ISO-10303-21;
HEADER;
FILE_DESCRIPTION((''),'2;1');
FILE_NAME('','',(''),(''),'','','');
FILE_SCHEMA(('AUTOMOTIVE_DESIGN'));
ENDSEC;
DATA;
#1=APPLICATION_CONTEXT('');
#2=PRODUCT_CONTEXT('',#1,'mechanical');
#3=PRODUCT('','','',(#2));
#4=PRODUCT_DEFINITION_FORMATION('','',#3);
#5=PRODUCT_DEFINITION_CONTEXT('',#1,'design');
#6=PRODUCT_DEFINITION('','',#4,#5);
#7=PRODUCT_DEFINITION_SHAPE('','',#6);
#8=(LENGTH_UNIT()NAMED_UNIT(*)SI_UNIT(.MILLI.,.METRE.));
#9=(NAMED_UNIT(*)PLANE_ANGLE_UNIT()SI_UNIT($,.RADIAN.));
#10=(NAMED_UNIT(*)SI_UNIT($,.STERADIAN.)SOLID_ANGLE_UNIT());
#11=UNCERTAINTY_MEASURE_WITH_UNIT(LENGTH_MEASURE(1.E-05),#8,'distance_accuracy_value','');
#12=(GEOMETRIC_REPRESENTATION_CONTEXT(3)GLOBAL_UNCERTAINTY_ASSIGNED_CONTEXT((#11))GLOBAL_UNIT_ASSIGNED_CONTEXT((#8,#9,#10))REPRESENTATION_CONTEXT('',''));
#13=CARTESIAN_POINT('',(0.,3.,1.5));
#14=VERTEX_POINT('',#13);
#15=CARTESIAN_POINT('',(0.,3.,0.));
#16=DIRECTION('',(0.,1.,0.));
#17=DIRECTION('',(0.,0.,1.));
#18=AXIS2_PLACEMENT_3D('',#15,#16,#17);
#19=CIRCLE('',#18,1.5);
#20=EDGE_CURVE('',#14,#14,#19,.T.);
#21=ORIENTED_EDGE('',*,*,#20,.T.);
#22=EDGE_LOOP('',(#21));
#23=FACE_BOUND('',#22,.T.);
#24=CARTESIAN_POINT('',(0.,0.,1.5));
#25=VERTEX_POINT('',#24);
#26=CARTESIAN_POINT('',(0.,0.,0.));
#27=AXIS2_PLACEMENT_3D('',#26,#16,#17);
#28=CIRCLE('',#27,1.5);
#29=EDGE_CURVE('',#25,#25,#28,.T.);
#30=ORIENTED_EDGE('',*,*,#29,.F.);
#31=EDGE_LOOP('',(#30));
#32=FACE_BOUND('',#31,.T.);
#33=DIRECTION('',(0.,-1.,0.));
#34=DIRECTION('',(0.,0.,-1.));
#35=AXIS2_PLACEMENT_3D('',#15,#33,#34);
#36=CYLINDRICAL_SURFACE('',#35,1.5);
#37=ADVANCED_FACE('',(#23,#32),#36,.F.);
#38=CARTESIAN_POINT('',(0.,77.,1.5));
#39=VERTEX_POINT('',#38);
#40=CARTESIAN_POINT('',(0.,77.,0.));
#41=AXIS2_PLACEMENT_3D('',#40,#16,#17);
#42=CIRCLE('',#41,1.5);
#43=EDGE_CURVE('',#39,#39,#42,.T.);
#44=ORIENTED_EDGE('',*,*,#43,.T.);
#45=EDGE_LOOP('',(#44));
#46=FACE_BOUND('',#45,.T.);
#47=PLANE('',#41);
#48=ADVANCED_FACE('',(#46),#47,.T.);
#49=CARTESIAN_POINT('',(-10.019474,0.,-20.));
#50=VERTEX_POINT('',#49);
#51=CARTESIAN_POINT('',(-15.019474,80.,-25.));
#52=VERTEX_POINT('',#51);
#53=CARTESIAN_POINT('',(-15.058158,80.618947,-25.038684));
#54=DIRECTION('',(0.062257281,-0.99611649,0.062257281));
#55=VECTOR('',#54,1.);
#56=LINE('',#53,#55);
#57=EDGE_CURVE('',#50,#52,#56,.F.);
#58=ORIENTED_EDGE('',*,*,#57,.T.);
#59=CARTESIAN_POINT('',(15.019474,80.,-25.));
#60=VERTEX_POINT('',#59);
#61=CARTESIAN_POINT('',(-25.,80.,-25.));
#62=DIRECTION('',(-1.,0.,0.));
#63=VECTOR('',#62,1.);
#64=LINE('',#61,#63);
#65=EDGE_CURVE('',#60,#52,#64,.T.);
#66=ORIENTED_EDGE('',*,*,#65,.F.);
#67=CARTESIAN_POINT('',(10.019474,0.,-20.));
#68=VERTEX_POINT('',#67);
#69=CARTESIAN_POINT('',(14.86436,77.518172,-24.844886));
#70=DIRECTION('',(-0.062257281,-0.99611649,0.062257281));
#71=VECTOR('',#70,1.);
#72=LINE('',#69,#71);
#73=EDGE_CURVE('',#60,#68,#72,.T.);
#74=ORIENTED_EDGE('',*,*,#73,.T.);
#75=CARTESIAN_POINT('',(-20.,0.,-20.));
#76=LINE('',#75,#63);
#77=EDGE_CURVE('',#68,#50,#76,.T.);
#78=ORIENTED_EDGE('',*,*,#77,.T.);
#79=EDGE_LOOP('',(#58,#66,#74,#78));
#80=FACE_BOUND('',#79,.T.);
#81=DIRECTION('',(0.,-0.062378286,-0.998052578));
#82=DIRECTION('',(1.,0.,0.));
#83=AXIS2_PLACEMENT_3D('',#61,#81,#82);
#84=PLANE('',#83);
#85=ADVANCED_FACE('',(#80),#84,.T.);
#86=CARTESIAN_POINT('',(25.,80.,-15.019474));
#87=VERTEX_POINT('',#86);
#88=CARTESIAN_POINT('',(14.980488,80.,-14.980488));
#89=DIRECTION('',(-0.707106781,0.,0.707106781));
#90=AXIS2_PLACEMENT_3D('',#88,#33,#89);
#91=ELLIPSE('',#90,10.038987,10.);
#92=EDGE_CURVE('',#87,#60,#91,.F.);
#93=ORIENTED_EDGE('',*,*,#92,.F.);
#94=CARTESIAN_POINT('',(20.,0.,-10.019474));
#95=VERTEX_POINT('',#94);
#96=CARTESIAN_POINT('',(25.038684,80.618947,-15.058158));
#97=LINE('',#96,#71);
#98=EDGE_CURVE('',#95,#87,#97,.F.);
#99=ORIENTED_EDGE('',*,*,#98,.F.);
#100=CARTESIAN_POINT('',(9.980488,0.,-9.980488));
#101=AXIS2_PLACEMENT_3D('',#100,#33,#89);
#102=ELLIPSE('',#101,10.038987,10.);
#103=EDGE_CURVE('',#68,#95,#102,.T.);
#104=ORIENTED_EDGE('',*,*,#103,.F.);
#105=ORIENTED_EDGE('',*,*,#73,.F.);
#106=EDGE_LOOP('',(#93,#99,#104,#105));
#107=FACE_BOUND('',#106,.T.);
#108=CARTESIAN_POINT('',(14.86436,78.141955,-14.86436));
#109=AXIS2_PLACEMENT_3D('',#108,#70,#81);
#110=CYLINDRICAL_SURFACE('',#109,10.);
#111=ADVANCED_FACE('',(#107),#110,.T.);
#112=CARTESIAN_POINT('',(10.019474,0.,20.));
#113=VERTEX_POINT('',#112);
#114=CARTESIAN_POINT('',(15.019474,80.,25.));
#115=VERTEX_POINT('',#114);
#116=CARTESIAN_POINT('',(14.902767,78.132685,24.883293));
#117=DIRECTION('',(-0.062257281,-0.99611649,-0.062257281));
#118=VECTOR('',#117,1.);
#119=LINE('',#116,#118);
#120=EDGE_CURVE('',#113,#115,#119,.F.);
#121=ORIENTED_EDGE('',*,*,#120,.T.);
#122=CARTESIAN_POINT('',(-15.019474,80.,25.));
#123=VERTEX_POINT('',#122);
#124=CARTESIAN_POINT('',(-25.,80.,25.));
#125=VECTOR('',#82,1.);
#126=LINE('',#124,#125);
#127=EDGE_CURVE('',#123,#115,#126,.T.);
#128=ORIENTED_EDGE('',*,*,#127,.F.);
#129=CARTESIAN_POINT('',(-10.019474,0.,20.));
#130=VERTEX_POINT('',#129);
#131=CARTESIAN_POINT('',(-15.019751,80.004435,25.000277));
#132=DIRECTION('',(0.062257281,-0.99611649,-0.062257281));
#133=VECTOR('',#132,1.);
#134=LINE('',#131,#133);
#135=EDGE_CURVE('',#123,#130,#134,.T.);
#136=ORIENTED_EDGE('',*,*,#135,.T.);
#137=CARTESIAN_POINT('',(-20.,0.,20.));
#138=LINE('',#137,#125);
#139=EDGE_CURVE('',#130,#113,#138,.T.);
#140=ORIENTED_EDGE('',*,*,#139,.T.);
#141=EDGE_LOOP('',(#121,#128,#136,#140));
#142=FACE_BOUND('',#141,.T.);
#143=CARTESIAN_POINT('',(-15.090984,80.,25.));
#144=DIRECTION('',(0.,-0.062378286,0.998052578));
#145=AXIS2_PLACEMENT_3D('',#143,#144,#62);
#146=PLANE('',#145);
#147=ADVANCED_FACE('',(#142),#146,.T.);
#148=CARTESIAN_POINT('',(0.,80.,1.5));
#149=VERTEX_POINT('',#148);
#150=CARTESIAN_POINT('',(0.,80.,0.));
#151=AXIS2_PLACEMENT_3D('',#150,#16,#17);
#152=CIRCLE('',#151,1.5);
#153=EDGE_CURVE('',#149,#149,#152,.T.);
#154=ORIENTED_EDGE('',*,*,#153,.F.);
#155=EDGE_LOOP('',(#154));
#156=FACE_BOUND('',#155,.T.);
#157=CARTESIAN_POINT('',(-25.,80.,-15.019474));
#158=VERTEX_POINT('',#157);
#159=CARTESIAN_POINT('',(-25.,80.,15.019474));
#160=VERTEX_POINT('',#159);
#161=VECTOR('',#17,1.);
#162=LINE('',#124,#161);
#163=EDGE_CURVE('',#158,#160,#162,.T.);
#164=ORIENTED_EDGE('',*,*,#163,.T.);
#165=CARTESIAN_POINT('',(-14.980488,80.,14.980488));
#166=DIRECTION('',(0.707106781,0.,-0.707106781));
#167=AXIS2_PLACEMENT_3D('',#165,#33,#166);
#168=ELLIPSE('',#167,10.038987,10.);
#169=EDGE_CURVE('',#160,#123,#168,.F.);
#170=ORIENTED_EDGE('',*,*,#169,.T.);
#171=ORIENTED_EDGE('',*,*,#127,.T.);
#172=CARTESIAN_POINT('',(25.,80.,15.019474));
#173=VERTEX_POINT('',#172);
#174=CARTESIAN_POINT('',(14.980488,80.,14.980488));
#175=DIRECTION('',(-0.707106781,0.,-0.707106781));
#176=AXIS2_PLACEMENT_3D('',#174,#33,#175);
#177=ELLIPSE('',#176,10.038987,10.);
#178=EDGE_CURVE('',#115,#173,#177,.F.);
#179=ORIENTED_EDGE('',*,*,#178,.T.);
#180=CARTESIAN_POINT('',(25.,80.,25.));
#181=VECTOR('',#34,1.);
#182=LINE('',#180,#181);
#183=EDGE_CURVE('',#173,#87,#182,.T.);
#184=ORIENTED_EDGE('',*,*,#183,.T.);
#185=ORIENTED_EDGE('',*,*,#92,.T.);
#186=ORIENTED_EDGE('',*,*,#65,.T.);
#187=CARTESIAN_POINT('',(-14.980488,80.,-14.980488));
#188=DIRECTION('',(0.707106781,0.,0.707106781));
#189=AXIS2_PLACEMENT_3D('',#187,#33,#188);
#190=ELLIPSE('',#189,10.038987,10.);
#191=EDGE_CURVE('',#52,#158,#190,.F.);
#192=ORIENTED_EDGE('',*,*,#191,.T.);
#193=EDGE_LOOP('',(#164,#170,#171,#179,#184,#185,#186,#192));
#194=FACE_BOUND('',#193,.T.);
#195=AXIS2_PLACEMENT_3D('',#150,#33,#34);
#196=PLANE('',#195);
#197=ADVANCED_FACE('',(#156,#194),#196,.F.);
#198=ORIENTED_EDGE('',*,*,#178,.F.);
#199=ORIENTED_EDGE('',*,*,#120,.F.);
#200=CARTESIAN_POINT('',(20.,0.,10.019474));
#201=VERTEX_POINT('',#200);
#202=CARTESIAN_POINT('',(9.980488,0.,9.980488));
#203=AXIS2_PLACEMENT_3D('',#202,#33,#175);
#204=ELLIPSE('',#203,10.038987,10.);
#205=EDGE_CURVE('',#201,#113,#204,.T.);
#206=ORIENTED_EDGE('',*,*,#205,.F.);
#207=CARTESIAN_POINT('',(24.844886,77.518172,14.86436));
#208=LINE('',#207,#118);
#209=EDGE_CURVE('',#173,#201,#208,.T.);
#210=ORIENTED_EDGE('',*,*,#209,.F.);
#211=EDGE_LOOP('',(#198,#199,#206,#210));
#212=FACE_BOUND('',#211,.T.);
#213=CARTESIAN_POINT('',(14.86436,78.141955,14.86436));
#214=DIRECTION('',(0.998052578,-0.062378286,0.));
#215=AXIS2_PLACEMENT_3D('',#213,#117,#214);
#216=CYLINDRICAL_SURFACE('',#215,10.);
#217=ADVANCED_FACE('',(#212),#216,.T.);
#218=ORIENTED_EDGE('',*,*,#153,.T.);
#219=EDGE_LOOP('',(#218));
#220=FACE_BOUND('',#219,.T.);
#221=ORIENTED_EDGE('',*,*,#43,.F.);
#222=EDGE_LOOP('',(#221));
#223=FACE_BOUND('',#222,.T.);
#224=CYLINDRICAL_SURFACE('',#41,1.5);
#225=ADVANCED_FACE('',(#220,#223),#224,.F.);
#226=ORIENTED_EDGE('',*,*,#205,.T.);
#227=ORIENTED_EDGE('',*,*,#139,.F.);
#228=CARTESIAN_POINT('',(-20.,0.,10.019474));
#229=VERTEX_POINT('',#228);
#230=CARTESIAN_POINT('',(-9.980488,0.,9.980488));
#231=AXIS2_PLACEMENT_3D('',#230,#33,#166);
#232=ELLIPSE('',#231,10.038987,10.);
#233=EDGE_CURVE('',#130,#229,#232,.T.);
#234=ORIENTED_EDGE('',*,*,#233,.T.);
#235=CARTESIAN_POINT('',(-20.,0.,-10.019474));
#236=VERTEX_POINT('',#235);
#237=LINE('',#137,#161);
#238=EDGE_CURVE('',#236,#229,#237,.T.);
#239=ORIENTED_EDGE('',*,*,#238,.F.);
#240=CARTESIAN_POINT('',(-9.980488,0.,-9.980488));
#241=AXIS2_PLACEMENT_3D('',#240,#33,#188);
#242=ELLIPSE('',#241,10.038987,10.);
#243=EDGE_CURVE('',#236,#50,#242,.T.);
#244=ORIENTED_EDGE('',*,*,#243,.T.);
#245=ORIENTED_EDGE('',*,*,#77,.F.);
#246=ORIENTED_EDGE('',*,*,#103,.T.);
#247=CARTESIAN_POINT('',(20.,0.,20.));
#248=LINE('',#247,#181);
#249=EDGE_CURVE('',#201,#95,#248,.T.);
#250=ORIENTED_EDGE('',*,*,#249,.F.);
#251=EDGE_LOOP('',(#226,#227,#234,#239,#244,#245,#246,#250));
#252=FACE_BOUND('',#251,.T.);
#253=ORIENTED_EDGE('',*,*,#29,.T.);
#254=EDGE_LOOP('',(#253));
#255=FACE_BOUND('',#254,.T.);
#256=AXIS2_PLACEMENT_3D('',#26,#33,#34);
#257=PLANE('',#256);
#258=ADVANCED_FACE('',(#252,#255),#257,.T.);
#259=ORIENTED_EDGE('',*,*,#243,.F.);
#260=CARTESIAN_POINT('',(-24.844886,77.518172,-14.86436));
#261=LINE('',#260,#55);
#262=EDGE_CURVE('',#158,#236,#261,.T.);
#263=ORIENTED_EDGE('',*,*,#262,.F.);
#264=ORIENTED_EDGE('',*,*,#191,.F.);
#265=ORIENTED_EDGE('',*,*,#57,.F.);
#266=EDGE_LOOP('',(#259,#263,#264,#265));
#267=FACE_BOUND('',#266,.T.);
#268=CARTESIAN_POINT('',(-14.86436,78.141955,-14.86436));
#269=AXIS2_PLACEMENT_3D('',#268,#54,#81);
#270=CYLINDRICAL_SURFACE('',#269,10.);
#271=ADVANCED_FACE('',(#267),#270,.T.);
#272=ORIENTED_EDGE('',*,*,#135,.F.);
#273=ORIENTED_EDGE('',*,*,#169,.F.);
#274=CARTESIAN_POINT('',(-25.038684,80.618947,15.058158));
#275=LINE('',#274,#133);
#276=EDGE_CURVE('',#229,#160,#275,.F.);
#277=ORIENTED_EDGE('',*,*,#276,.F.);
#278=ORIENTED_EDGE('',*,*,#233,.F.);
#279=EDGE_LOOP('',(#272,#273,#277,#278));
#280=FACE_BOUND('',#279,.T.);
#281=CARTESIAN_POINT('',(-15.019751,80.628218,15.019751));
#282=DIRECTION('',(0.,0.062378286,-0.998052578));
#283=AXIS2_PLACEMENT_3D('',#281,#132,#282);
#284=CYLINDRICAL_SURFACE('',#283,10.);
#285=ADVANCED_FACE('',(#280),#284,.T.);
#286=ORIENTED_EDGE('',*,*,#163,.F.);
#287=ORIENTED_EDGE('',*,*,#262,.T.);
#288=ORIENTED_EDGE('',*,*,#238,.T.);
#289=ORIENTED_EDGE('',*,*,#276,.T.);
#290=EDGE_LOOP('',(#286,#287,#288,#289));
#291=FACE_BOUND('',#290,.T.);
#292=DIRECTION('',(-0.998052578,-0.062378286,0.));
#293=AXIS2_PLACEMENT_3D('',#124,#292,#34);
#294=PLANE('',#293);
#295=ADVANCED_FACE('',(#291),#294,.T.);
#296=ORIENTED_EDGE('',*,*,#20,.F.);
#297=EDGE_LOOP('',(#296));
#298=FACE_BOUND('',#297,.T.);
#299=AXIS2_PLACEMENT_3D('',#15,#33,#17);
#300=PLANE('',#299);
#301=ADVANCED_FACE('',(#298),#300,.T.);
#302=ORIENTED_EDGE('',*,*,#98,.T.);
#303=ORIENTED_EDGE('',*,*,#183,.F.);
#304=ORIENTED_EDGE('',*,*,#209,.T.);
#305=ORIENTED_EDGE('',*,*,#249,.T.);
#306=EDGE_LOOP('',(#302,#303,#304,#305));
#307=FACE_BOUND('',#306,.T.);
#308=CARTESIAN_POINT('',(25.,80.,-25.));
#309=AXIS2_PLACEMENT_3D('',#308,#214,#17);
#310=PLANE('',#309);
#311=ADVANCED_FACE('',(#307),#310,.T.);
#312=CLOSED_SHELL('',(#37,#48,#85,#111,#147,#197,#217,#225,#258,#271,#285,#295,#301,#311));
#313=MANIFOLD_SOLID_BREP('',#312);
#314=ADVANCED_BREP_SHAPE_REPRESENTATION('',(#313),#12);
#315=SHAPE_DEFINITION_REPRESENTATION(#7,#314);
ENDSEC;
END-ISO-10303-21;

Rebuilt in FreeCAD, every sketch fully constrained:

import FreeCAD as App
import Part
import Sketcher

V = App.Vector
Q = App.Units.Quantity


def edges_at(feature, points):
    """Names of the edges that pass closest to the given points."""
    edges = feature.Shape.Edges
    near = lambda p: min(range(len(edges)), key=lambda i: edges[i].distToShape(Part.Vertex(*p))[0])
    return sorted({f"Edge{near(p) + 1}" for p in points})


def add_polygon(sketch, points):
    """Adds a closed chain of lines whose ends are joined by coincident constraints."""
    first, n = sketch.GeometryCount, len(points)
    for a, b in zip(points, points[1:] + points[:1]):
        sketch.addGeometry(Part.LineSegment(App.Vector(*a, 0), App.Vector(*b, 0)), False)
    for i in range(n):
        sketch.addConstraint(Sketcher.Constraint("Coincident", first + i, 2, first + (i + 1) % n, 1))

doc = App.newDocument("Part")
body = doc.addObject("PartDesign::Body", "Body")

sketch1 = body.newObject("Sketcher::SketchObject", "Sketch")
sketch1.AttachmentSupport = (doc.getObject("XZ_Plane"), [""])
sketch1.MapMode = "FlatFace"
sketch1.AttachmentOffset = App.Placement(V(0, 0, -80), App.Rotation())
add_polygon(sketch1, [(-25, 25), (25, 25), (25, -25), (-25, -25)])
sketch1.addConstraint([
    Sketcher.Constraint("Horizontal", 0),
    Sketcher.Constraint("Vertical", 1),
    Sketcher.Constraint("Horizontal", 2),
    Sketcher.Constraint("Vertical", 3),
    Sketcher.Constraint("Symmetric", 0, 2, 2, 2, -1, 1),
    Sketcher.Constraint("Equal", 2, 1),
    Sketcher.Constraint("DistanceX", 0, 1, 0, 2, Q("50 mm")),
])

sketch2 = body.newObject("Sketcher::SketchObject", "Sketch001")
sketch2.AttachmentSupport = (doc.getObject("XZ_Plane"), [""])
sketch2.MapMode = "FlatFace"
add_polygon(sketch2, [(-20, 20), (20, 20), (20, -20), (-20, -20)])
sketch2.addConstraint([
    Sketcher.Constraint("Horizontal", 0),
    Sketcher.Constraint("Vertical", 1),
    Sketcher.Constraint("Horizontal", 2),
    Sketcher.Constraint("Vertical", 3),
    Sketcher.Constraint("Symmetric", 0, 2, 2, 2, -1, 1),
    Sketcher.Constraint("Equal", 2, 1),
    Sketcher.Constraint("DistanceX", 0, 1, 0, 2, Q("40 mm")),
])

additiveloft = body.newObject("PartDesign::AdditiveLoft", "AdditiveLoft")
additiveloft.Profile = sketch1
additiveloft.Sections = [sketch2]

sketch3 = body.newObject("Sketcher::SketchObject", "Sketch002")
sketch3.AttachmentSupport = (doc.getObject("XZ_Plane"), [""])
sketch3.MapMode = "FlatFace"
sketch3.AttachmentOffset = App.Placement(V(0, 0, -80), App.Rotation())
sketch3.addGeometry(Part.Circle(V(0, 0, 0), V(0, 0, 1), 1.5), False)
sketch3.addConstraint([
    Sketcher.Constraint("Coincident", 0, 3, -1, 1),
    Sketcher.Constraint("Diameter", 0, Q("3 mm")),
])
pocket1 = body.newObject("PartDesign::Pocket", "Pocket")
pocket1.Profile = sketch3
pocket1.Length = 3
pocket1.Reversed = True
doc.recompute()

datumplane = body.newObject("PartDesign::Plane", "DatumPlane")
datumplane.AttachmentSupport = (doc.getObject("XZ_Plane"), [""])
datumplane.MapMode = "FlatFace"
datumplane.AttachmentOffset = App.Placement(V(0, 0, -40), App.Rotation())
mirrored = body.newObject("PartDesign::Mirrored", "Mirrored")
mirrored.Originals = [pocket1]
mirrored.MirrorPlane = (datumplane, [""])
body.Tip = mirrored
doc.recompute()

fillet = body.newObject("PartDesign::Fillet", "Fillet")
fillet.Base = (mirrored, edges_at(mirrored, [
    (-22.5, 40, 22.5),
    (-22.5, 40, -22.5),
    (22.5, 40, -22.5),
    (22.5, 40, 22.5),
]))
fillet.Radius = 10

doc.recompute()
